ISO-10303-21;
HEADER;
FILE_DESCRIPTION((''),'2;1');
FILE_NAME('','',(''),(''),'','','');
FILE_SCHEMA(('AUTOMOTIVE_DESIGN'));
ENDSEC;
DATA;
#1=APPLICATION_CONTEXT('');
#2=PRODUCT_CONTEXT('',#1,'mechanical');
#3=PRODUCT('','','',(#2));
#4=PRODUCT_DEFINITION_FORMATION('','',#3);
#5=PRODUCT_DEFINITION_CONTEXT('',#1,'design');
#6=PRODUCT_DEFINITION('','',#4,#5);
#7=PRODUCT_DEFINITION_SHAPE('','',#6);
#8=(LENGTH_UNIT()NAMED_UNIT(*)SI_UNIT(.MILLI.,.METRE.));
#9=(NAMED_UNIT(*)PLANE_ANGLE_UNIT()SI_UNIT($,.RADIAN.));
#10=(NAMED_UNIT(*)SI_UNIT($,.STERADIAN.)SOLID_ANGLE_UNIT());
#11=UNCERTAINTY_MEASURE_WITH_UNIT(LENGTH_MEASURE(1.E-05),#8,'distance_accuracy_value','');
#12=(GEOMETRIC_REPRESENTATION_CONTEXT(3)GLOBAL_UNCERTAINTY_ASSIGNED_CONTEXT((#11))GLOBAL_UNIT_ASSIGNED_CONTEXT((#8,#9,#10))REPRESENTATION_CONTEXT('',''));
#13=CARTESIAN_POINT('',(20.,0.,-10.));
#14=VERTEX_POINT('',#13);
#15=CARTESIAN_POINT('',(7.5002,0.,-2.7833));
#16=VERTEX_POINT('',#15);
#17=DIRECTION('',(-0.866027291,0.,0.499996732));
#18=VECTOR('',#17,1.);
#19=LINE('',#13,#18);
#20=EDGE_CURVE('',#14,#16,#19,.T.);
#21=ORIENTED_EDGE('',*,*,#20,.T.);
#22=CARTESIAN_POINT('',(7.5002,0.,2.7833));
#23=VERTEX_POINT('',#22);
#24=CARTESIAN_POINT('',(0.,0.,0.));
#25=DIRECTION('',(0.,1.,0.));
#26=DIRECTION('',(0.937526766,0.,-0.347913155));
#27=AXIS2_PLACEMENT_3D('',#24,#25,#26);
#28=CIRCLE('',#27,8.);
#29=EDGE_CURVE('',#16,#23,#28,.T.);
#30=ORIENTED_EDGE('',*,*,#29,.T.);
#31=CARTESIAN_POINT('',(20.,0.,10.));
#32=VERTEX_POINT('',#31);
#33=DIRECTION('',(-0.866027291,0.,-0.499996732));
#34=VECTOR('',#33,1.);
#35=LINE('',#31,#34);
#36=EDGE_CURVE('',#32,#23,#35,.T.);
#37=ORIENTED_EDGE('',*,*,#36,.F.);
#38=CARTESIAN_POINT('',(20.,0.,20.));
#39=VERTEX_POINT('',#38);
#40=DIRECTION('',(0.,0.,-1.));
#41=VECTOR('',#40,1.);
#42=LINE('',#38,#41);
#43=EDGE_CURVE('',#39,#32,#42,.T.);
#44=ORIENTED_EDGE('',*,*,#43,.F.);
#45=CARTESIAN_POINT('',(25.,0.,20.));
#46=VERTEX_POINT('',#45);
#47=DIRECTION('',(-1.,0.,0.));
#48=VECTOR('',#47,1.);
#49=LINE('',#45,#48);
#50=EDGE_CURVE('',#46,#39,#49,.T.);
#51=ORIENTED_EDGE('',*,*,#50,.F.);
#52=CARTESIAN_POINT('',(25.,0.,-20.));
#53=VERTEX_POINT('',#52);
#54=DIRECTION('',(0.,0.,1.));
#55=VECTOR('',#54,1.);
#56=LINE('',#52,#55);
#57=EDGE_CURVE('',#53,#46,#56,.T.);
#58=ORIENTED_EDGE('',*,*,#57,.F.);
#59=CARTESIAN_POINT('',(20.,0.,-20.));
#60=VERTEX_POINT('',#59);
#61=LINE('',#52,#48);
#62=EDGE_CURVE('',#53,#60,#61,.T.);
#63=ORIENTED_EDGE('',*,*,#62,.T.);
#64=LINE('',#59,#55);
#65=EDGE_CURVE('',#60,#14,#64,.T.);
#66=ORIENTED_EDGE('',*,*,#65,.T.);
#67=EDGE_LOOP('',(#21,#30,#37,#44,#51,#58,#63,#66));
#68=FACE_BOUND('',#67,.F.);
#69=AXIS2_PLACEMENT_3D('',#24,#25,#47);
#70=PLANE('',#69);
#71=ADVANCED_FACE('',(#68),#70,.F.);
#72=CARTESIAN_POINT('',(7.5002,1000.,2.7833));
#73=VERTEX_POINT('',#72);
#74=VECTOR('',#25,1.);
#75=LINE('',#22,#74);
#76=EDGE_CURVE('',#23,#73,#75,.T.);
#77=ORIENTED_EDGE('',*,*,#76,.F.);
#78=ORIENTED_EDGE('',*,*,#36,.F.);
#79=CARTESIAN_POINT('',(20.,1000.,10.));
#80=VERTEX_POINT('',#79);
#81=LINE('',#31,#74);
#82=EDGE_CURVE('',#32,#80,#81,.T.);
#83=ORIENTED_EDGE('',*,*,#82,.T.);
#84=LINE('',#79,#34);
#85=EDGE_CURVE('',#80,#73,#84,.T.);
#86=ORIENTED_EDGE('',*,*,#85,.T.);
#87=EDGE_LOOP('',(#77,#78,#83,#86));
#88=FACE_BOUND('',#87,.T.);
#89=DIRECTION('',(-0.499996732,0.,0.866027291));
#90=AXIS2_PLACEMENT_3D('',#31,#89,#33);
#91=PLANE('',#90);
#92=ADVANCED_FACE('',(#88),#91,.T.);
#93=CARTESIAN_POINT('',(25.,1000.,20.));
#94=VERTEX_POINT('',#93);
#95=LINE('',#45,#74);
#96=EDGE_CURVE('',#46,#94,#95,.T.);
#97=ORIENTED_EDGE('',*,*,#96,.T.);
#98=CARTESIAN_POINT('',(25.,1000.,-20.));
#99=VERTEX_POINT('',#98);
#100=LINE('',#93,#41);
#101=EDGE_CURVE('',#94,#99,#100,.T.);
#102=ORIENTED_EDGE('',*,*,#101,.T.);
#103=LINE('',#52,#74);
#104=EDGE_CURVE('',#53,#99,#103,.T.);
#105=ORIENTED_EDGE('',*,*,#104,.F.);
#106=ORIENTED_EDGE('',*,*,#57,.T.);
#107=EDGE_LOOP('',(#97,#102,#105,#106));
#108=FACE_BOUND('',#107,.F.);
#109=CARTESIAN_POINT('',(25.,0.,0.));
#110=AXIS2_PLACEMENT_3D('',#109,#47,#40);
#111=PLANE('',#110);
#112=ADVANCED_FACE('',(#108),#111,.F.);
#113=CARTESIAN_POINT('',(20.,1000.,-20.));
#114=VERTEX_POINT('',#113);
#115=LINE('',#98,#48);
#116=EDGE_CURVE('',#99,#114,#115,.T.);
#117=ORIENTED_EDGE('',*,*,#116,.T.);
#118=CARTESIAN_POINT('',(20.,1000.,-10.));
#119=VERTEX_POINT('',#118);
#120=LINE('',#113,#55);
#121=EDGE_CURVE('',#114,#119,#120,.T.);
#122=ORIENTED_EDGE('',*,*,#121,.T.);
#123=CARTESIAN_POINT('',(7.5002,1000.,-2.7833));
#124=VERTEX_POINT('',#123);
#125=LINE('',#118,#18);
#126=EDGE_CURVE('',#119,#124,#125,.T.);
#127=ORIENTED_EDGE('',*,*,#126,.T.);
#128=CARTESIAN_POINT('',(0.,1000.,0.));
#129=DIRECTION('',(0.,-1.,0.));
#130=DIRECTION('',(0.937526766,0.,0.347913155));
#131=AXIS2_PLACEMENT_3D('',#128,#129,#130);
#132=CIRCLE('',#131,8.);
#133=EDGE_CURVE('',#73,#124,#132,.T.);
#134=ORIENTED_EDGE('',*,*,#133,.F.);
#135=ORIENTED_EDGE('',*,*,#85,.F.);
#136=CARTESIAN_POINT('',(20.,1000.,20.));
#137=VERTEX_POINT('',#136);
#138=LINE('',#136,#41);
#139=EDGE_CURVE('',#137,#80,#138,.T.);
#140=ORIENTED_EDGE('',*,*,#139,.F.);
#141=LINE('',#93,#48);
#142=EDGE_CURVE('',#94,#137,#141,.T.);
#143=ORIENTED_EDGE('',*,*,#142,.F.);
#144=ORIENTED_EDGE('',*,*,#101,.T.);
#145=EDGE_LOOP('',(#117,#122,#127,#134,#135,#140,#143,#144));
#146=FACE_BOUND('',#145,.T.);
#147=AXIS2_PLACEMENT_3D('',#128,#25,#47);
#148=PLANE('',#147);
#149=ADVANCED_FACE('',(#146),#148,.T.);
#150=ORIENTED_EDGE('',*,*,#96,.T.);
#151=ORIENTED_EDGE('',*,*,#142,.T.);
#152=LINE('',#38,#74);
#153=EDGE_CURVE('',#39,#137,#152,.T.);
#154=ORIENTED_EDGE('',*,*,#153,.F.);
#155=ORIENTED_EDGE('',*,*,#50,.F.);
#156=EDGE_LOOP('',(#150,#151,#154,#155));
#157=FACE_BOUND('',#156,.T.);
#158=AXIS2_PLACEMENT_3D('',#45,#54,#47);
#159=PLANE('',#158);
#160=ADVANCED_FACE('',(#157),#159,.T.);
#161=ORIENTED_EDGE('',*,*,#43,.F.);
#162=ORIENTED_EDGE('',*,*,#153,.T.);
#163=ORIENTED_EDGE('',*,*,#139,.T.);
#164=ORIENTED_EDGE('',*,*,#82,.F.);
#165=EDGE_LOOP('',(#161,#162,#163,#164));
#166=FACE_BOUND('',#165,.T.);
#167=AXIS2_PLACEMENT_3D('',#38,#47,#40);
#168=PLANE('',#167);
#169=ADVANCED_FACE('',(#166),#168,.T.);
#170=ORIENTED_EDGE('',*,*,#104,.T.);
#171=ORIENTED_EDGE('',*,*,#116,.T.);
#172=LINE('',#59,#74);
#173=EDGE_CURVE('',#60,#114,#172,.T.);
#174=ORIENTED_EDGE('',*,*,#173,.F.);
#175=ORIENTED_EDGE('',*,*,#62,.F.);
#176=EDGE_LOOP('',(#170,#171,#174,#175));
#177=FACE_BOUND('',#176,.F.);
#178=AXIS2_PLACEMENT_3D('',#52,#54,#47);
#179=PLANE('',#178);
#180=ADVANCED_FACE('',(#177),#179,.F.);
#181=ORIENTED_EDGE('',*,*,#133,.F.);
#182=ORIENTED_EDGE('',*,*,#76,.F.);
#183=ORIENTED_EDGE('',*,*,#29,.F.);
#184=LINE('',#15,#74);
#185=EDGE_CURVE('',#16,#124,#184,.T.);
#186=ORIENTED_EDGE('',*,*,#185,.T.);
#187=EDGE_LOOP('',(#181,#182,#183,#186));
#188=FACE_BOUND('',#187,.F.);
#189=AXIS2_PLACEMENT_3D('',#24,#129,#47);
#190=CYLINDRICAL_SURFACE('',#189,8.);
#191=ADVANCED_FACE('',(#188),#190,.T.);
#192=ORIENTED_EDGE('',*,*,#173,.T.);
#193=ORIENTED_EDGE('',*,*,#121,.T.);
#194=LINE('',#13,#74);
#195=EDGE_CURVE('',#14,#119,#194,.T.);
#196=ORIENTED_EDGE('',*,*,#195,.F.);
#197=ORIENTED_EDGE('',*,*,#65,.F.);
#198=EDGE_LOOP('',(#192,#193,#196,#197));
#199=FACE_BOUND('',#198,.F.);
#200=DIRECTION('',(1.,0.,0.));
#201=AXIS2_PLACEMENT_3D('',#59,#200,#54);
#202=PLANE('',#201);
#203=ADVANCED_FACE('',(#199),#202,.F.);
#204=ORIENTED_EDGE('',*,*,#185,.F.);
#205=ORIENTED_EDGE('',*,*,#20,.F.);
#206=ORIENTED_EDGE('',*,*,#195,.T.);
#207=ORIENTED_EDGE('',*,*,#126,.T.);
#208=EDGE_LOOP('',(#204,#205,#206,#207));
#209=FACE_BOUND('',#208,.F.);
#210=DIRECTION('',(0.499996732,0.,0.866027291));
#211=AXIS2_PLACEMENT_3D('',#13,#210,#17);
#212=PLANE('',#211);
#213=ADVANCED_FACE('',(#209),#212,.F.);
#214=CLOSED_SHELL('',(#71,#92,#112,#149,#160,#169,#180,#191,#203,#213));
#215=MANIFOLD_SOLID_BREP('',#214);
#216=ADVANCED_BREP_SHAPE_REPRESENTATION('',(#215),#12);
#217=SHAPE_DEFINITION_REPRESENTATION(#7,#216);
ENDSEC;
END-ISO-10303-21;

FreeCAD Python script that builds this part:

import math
import FreeCAD as App
import Part
import Sketcher
Q = App.Units.Quantity

doc = App.newDocument("Part")
body = doc.addObject("PartDesign::Body", "Body")

# Sketch on XZ plane
sketch1 = doc.addObject("Sketcher::SketchObject", "Sketch")
body.addObject(sketch1)
sketch1.AttachmentSupport = (doc.XZ_Plane, [""])
sketch1.MapMode = "FlatFace"
sketch1.addGeometry([
    Part.ArcOfCircle(Part.Circle(App.Vector(0, 0, 0), App.Vector(0, 0, 1), 8), math.radians(20), math.radians(340)),  # 0
    Part.LineSegment(App.Vector(8, 3, 0), App.Vector(20, 10, 0)),  # 1
    Part.LineSegment(App.Vector(20, 10, 0), App.Vector(20, 20, 0)),  # 2
    Part.LineSegment(App.Vector(20, 20, 0), App.Vector(25, 20, 0)),  # 3
    Part.LineSegment(App.Vector(25, 20, 0), App.Vector(25, -20, 0)),  # 4
    Part.LineSegment(App.Vector(25, -20, 0), App.Vector(20, -20, 0)),  # 5
    Part.LineSegment(App.Vector(20, -20, 0), App.Vector(20, -10, 0)),  # 6
    Part.LineSegment(App.Vector(20, -10, 0), App.Vector(8, -3, 0)),  # 7
], False)
sketch1.addConstraint([
    Sketcher.Constraint("Coincident", 0, 1, 1, 1),
    Sketcher.Constraint("Coincident", 1, 2, 2, 1),
    Sketcher.Constraint("Coincident", 2, 2, 3, 1),
    Sketcher.Constraint("Coincident", 3, 2, 4, 1),
    Sketcher.Constraint("Coincident", 4, 2, 5, 1),
    Sketcher.Constraint("Coincident", 5, 2, 6, 1),
    Sketcher.Constraint("Coincident", 6, 2, 7, 1),
    Sketcher.Constraint("Coincident", 7, 2, 0, 2),
    Sketcher.Constraint("Vertical", 2),
    Sketcher.Constraint("Horizontal", 3),
    Sketcher.Constraint("Vertical", 4),
    Sketcher.Constraint("Horizontal", 5),
    Sketcher.Constraint("Vertical", 6),
    Sketcher.Constraint("Coincident", 0, 3, -1, 1),
    Sketcher.Constraint("Symmetric", 2, 2, 5, 2, -1),
    Sketcher.Constraint("Vertical", 0, 1, 7, 2),
    Sketcher.Constraint("Equal", 2, 6),
    Sketcher.Constraint("Radius", 0, Q("8 mm")),
    Sketcher.Constraint("DistanceX", 3, 1, 3, 2, Q("5 mm")),
    Sketcher.Constraint("DistanceX", -1, 1, 1, 2, Q("20 mm")),
    Sketcher.Constraint("DistanceY", -1, 1, 2, 2, Q("20 mm")),
    Sketcher.Constraint("DistanceY", 6, 2, 1, 2, Q("20 mm")),
    Sketcher.Constraint("Angle", 1, Q("29.9998 deg")),
])
pad1 = doc.addObject("PartDesign::Pad", "Pad")
body.addObject(pad1)
pad1.Profile = sketch1
pad1.Length = 1000
pad1.Reversed = True

doc.recompute()
